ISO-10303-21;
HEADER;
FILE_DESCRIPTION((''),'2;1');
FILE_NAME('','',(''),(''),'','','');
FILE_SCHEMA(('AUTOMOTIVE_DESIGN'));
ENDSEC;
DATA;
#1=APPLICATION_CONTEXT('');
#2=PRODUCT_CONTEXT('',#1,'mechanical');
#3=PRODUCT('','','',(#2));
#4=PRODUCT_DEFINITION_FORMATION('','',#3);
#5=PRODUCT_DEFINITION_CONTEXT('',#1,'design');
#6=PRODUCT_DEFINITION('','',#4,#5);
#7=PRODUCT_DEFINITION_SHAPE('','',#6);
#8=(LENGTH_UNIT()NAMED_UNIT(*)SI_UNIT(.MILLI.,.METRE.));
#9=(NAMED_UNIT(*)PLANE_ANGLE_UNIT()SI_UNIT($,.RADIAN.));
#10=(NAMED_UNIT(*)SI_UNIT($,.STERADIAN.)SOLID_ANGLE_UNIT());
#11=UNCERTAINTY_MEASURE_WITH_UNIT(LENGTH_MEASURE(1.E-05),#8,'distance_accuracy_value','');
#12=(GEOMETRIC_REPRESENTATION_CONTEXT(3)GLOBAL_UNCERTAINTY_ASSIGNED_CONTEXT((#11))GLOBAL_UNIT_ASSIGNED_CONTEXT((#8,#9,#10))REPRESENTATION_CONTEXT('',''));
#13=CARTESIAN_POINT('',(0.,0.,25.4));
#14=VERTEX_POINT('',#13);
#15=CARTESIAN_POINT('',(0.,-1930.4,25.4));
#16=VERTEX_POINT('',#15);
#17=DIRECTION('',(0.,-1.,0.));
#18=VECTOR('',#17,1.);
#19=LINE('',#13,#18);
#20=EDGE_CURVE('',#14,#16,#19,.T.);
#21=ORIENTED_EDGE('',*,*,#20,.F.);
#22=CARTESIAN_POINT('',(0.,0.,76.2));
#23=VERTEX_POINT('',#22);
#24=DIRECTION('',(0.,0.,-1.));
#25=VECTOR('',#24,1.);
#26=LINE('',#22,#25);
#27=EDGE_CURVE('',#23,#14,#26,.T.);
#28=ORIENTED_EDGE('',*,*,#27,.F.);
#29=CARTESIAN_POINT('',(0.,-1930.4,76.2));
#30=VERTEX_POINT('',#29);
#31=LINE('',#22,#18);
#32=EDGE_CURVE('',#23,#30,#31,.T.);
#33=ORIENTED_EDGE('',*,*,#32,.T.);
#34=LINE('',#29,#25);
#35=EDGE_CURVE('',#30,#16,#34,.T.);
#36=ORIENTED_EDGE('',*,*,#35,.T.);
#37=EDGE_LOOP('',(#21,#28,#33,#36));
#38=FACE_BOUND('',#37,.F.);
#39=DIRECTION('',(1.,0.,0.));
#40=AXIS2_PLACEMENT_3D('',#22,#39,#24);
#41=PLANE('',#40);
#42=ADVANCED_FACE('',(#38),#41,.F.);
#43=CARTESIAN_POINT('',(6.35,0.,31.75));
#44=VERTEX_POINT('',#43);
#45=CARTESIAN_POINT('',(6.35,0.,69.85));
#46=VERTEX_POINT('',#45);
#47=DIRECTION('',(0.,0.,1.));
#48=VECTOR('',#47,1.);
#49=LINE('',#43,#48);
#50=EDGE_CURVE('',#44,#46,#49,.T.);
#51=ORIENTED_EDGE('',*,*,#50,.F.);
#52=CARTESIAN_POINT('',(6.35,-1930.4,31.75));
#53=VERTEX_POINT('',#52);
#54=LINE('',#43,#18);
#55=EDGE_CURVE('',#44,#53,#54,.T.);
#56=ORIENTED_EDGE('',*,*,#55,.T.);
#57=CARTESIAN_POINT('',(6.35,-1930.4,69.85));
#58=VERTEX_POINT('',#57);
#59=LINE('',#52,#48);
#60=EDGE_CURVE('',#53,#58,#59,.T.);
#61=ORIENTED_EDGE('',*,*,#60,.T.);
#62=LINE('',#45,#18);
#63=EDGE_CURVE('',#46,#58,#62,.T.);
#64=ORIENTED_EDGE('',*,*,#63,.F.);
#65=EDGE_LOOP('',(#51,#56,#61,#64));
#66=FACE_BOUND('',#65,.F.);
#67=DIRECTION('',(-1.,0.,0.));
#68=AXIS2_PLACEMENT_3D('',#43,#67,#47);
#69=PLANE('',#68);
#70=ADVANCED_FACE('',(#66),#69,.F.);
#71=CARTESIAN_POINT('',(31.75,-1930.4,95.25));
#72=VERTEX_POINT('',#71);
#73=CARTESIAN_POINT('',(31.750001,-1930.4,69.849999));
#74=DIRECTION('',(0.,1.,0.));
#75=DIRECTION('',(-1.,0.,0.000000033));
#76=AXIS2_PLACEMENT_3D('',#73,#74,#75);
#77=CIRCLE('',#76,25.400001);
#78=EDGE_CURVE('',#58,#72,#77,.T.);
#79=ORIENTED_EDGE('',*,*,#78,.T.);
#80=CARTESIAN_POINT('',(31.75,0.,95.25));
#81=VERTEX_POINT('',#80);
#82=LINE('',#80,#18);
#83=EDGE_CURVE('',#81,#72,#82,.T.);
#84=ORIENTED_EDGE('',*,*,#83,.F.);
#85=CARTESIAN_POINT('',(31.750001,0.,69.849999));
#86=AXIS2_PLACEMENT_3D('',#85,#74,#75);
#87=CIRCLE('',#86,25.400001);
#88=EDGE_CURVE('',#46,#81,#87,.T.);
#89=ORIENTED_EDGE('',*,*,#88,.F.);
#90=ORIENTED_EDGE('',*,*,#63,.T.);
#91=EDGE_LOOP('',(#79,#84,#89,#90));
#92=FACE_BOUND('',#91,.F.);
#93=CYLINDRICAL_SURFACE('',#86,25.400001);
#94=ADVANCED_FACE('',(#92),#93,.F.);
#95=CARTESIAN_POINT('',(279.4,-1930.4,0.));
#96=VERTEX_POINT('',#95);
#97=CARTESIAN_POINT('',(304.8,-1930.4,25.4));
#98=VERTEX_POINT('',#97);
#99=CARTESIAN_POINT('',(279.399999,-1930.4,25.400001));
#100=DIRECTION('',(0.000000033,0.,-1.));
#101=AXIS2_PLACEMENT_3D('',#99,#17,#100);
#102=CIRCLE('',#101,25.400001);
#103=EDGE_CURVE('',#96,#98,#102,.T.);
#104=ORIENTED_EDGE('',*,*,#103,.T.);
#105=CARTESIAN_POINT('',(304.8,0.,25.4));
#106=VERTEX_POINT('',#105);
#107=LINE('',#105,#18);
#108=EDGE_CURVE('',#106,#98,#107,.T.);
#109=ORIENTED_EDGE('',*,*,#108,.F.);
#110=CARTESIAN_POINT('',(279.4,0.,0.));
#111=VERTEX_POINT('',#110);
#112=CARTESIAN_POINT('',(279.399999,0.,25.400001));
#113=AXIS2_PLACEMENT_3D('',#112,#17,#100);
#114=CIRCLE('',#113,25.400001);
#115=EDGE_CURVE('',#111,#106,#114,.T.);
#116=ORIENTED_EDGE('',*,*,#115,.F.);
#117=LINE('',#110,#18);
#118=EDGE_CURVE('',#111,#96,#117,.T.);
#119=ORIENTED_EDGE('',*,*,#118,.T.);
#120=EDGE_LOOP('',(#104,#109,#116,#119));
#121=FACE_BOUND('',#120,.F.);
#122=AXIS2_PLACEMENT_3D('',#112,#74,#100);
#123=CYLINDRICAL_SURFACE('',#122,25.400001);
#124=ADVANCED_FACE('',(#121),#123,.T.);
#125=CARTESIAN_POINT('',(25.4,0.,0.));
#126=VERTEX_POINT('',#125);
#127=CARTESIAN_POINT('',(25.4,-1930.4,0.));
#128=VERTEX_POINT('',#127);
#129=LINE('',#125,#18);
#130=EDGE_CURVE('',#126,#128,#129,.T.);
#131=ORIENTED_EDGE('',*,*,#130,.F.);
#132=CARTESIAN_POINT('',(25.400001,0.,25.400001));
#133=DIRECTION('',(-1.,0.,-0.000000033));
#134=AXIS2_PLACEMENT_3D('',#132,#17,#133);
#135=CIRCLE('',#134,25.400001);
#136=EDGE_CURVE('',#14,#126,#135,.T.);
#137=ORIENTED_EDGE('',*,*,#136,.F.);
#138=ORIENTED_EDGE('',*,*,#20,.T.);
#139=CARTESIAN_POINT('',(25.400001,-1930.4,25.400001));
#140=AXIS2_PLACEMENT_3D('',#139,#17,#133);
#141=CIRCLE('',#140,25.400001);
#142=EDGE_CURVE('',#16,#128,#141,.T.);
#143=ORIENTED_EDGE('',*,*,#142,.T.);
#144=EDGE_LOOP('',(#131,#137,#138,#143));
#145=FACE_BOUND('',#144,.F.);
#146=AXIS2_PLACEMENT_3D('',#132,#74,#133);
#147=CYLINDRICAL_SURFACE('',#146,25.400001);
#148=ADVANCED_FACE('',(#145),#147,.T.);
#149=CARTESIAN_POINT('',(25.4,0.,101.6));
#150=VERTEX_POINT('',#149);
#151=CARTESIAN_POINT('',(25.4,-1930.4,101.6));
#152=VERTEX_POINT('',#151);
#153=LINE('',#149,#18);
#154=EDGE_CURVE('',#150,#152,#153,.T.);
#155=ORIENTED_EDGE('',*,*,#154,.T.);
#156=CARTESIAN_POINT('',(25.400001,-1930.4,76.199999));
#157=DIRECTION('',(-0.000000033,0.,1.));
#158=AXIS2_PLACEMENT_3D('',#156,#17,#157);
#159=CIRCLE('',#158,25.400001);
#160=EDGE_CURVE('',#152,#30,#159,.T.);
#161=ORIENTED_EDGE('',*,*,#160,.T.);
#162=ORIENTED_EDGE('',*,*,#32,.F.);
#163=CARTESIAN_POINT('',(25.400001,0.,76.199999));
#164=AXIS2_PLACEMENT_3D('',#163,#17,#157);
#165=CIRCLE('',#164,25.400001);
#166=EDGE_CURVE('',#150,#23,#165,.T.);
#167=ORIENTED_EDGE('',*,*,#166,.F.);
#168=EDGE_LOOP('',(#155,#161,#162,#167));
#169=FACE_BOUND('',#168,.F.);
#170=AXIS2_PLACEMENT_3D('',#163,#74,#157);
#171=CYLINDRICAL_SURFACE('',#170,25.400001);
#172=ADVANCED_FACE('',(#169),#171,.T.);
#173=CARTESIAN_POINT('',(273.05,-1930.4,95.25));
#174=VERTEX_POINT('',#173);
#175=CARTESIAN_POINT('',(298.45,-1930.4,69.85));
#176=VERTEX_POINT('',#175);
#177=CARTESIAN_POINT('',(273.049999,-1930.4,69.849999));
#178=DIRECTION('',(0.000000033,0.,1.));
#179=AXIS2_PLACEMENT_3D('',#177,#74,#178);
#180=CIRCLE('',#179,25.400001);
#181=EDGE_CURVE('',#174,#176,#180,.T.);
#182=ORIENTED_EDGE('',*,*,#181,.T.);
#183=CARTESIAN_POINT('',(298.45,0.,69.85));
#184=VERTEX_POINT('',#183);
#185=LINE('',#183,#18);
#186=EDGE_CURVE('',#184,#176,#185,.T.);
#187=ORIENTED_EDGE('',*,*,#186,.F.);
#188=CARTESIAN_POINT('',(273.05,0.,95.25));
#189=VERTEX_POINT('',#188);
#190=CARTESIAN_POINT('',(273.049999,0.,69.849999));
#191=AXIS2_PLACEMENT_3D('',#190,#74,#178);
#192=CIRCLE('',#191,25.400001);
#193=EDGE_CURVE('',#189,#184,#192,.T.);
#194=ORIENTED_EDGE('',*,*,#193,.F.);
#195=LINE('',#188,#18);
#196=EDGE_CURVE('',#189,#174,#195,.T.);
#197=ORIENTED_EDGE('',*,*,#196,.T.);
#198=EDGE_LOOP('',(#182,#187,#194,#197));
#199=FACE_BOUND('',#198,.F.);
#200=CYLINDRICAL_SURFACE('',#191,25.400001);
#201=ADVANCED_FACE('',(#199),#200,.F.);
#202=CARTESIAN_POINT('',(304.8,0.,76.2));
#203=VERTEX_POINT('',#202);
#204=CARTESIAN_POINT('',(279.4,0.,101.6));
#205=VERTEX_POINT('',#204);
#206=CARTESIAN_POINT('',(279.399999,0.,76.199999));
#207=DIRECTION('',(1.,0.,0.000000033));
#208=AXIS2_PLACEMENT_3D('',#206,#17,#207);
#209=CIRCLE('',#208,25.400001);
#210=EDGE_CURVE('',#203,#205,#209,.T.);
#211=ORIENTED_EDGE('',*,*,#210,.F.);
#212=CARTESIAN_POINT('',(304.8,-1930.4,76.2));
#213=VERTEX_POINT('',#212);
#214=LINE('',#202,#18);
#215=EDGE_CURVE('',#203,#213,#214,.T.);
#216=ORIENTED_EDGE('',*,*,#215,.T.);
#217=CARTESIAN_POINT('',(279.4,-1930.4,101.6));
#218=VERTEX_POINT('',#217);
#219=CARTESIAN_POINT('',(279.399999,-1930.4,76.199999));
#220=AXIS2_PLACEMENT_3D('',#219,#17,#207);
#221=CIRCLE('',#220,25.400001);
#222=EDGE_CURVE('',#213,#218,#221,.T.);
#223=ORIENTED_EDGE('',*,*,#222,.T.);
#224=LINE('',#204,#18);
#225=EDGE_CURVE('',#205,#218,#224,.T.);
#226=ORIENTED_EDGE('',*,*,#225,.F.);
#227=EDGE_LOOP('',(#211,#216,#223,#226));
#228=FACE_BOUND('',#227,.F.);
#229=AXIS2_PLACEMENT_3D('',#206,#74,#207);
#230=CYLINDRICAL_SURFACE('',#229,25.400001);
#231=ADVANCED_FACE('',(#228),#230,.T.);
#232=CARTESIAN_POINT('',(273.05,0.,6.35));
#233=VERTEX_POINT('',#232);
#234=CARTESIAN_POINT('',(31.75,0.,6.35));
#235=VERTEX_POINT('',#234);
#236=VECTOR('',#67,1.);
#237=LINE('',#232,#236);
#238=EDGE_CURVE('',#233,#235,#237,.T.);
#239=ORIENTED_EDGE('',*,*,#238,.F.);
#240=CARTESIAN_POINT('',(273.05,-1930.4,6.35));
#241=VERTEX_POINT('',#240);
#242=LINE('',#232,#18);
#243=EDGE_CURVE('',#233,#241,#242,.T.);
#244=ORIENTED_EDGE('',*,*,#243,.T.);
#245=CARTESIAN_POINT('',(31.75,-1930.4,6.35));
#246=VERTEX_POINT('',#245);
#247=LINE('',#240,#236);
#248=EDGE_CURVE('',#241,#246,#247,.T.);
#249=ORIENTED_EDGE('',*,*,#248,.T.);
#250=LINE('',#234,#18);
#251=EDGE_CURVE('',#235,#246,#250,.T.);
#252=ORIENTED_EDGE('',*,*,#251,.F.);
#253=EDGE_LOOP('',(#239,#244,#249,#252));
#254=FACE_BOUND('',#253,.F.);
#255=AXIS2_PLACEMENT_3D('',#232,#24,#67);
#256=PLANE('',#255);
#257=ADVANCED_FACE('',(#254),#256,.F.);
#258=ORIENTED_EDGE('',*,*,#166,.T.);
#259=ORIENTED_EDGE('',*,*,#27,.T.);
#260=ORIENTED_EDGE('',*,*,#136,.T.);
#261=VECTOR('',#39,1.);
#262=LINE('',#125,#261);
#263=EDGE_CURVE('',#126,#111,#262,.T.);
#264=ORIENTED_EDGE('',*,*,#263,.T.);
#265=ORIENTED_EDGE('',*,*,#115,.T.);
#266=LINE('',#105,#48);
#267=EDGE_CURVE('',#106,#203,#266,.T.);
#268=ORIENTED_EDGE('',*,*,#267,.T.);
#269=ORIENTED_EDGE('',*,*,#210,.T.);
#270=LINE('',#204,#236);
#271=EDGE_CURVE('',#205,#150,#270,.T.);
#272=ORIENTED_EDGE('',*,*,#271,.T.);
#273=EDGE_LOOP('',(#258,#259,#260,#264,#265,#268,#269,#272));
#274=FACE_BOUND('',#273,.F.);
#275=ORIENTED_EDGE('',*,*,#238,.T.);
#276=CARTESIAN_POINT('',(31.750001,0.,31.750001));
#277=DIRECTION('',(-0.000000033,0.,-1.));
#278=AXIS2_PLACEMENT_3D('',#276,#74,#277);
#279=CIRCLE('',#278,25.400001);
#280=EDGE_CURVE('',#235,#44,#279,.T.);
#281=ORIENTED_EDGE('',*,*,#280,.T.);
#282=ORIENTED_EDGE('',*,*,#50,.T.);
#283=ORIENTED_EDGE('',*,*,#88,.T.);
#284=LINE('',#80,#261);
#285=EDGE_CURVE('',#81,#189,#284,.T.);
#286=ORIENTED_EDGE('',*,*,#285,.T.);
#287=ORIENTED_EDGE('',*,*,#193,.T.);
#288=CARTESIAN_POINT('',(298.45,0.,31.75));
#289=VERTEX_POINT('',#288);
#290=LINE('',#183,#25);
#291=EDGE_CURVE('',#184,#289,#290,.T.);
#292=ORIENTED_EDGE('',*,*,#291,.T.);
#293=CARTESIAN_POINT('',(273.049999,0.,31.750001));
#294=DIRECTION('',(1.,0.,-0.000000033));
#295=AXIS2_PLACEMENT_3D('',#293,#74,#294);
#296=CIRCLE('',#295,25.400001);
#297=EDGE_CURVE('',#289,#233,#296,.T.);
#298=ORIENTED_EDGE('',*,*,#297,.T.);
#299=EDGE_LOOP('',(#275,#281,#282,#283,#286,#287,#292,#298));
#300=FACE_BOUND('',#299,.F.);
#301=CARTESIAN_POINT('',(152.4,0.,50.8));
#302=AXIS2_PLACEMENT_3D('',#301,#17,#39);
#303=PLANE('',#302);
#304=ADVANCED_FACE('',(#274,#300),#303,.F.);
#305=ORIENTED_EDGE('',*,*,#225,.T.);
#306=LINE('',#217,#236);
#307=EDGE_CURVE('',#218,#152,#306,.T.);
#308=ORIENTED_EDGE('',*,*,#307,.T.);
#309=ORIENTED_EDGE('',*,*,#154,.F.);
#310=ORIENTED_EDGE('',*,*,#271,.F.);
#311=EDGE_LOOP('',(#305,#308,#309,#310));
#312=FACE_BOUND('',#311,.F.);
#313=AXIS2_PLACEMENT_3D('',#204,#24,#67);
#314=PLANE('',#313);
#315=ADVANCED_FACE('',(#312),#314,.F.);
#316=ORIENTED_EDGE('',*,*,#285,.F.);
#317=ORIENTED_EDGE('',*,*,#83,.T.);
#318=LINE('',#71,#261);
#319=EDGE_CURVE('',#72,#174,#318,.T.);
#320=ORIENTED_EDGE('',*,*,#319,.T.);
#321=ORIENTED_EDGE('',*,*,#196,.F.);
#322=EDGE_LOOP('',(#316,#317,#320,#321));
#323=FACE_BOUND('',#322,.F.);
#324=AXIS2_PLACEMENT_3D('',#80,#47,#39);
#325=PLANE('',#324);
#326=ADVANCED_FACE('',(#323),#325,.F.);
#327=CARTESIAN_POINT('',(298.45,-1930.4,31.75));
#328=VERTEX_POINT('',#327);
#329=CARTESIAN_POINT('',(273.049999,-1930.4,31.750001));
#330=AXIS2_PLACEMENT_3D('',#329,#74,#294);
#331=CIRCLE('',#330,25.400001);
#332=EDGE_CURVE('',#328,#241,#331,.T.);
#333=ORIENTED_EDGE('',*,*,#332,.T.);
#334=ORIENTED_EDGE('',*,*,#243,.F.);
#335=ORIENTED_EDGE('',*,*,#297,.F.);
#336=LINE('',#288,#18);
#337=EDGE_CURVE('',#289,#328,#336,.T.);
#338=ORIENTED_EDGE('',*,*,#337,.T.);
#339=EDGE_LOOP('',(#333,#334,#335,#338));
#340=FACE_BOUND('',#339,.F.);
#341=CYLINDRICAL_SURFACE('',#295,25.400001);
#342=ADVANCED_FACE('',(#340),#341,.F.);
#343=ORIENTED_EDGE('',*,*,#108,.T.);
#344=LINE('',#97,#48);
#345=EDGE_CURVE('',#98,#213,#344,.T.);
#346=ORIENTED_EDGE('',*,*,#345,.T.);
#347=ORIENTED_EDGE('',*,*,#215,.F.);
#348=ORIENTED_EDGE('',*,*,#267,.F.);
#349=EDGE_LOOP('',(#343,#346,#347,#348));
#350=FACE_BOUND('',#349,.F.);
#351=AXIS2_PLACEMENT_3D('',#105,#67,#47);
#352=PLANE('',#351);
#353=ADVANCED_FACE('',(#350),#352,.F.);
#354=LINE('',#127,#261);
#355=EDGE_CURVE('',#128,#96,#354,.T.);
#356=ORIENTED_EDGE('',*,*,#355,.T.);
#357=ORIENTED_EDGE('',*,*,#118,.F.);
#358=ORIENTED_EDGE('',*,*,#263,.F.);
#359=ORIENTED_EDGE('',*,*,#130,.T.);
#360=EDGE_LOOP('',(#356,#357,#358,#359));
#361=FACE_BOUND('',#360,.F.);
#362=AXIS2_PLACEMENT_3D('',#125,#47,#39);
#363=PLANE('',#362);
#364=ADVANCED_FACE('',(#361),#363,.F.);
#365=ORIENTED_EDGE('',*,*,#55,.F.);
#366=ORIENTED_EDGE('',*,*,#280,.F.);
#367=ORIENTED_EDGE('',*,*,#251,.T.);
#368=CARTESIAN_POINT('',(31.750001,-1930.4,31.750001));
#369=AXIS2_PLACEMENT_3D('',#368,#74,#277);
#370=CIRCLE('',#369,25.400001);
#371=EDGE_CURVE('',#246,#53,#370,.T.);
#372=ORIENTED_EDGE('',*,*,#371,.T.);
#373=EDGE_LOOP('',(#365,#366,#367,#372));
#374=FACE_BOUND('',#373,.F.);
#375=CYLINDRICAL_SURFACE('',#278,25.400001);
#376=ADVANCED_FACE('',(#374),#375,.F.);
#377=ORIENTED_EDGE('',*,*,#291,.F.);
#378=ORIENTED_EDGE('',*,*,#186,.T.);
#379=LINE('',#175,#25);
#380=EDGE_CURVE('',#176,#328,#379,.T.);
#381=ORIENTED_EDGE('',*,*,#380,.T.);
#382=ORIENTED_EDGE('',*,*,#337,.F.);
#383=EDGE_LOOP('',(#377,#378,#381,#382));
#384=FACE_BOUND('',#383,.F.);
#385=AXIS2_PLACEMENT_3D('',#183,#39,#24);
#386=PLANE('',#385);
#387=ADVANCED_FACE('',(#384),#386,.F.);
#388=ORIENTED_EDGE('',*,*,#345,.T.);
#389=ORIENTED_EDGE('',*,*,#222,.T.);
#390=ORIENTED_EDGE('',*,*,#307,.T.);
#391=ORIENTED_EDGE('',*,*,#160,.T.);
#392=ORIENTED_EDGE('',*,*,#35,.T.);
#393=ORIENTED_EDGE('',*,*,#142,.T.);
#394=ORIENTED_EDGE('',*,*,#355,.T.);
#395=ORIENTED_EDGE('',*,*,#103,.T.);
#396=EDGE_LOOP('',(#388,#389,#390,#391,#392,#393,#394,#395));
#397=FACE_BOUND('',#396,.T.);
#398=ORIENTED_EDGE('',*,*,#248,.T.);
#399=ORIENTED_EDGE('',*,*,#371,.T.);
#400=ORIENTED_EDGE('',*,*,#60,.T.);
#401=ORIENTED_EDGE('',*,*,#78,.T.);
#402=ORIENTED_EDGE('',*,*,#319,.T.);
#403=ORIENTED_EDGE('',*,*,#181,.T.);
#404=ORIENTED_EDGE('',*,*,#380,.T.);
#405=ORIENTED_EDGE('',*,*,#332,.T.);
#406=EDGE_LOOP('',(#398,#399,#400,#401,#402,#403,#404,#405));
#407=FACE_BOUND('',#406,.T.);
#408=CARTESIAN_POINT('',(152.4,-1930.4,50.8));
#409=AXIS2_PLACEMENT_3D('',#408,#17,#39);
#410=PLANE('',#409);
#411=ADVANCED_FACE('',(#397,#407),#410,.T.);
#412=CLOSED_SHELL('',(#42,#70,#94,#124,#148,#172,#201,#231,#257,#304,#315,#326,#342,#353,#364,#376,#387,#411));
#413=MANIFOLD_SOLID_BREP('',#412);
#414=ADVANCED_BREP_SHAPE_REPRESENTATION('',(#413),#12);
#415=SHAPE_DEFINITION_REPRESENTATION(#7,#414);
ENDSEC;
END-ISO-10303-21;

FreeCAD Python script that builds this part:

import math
import FreeCAD as App
import Part
import Sketcher

V = App.Vector
Q = App.Units.Quantity

doc = App.newDocument("Part")
body = doc.addObject("PartDesign::Body", "Body")

# Sketch on XZ plane
sketch1 = body.newObject("Sketcher::SketchObject", "Sketch")
sketch1.AttachmentSupport = (doc.getObject("XZ_Plane"), [""])
sketch1.MapMode = "FlatFace"
sketch1.addGeometry([
    Part.ArcOfCircle(Part.Circle(V(25, 25, 0), V(0, 0, 1), 25), math.radians(-180), math.radians(-90)),  # 0
    Part.LineSegment(V(25, 0, 0), V(279, 0, 0)),  # 1
    Part.ArcOfCircle(Part.Circle(V(279, 25, 0), V(0, 0, 1), 25), math.radians(-90), math.radians(0)),  # 2
    Part.LineSegment(V(305, 25, 0), V(305, 76, 0)),  # 3
    Part.ArcOfCircle(Part.Circle(V(279, 76, 0), V(0, 0, 1), 25), math.radians(0), math.radians(90)),  # 4
    Part.LineSegment(V(279, 102, 0), V(25, 102, 0)),  # 5
    Part.ArcOfCircle(Part.Circle(V(25, 76, 0), V(0, 0, 1), 25), math.radians(90), math.radians(180)),  # 6
    Part.LineSegment(V(0, 76, 0), V(0, 25, 0)),  # 7
    Part.ArcOfCircle(Part.Circle(V(273, 32, 0), V(0, 0, 1), 25), math.radians(-90), math.radians(0)),  # 8
    Part.LineSegment(V(273, 6, 0), V(32, 6, 0)),  # 9
    Part.ArcOfCircle(Part.Circle(V(32, 32, 0), V(0, 0, 1), 25), math.radians(-180), math.radians(-90)),  # 10
    Part.LineSegment(V(6, 32, 0), V(6, 70, 0)),  # 11
    Part.ArcOfCircle(Part.Circle(V(32, 70, 0), V(0, 0, 1), 25), math.radians(90), math.radians(180)),  # 12
    Part.LineSegment(V(32, 95, 0), V(273, 95, 0)),  # 13
    Part.ArcOfCircle(Part.Circle(V(273, 70, 0), V(0, 0, 1), 25), math.radians(0), math.radians(90)),  # 14
    Part.LineSegment(V(298, 70, 0), V(298, 32, 0)),  # 15
], False)
sketch1.addConstraint([
    Sketcher.Constraint("Tangent", 0, 2, 1, 1),
    Sketcher.Constraint("Tangent", 1, 2, 2, 1),
    Sketcher.Constraint("Tangent", 2, 2, 3, 1),
    Sketcher.Constraint("Tangent", 3, 2, 4, 1),
    Sketcher.Constraint("Tangent", 4, 2, 5, 1),
    Sketcher.Constraint("Tangent", 5, 2, 6, 1),
    Sketcher.Constraint("Tangent", 6, 2, 7, 1),
    Sketcher.Constraint("Tangent", 7, 2, 0, 1),
    Sketcher.Constraint("Tangent", 8, 1, 9, 1),
    Sketcher.Constraint("Tangent", 9, 2, 10, 2),
    Sketcher.Constraint("Tangent", 10, 1, 11, 1),
    Sketcher.Constraint("Tangent", 11, 2, 12, 2),
    Sketcher.Constraint("Tangent", 12, 1, 13, 1),
    Sketcher.Constraint("Tangent", 13, 2, 14, 2),
    Sketcher.Constraint("Tangent", 14, 1, 15, 1),
    Sketcher.Constraint("Tangent", 15, 2, 8, 2),
    Sketcher.Constraint("Horizontal", 1),
    Sketcher.Constraint("Vertical", 3),
    Sketcher.Constraint("Horizontal", 5),
    Sketcher.Constraint("Vertical", 7),
    Sketcher.Constraint("Horizontal", 9),
    Sketcher.Constraint("Vertical", 11),
    Sketcher.Constraint("Horizontal", 13),
    Sketcher.Constraint("Vertical", 15),
    Sketcher.Constraint("Equal", 0, 2),
    Sketcher.Constraint("Equal", 2, 4),
    Sketcher.Constraint("Equal", 4, 6),
    Sketcher.Constraint("Equal", 6, 8),
    Sketcher.Constraint("Equal", 8, 10),
    Sketcher.Constraint("Equal", 10, 12),
    Sketcher.Constraint("Equal", 12, 14),
    Sketcher.Constraint("PointOnObject", 0, 2, -1),
    Sketcher.Constraint("PointOnObject", 6, 2, -2),
    Sketcher.Constraint("Radius", 0, Q("1 in")),
    Sketcher.Constraint("DistanceX", 1, 1, 1, 2, Q("10 in")),
    Sketcher.Constraint("DistanceY", 3, 1, 3, 2, Q("2 in")),
    Sketcher.Constraint("DistanceX", 9, 2, 9, 1, Q("9.5 in")),
    Sketcher.Constraint("DistanceY", 11, 1, 11, 2, Q("1.5 in")),
    Sketcher.Constraint("DistanceX", -1, 1, 8, 3, Q("10.75 in")),
    Sketcher.Constraint("DistanceY", -1, 1, 8, 3, Q("1.25 in")),
])
pad1 = body.newObject("PartDesign::Pad", "Pad")
pad1.Profile = sketch1
pad1.Length = Q("76 in")

doc.recompute()
